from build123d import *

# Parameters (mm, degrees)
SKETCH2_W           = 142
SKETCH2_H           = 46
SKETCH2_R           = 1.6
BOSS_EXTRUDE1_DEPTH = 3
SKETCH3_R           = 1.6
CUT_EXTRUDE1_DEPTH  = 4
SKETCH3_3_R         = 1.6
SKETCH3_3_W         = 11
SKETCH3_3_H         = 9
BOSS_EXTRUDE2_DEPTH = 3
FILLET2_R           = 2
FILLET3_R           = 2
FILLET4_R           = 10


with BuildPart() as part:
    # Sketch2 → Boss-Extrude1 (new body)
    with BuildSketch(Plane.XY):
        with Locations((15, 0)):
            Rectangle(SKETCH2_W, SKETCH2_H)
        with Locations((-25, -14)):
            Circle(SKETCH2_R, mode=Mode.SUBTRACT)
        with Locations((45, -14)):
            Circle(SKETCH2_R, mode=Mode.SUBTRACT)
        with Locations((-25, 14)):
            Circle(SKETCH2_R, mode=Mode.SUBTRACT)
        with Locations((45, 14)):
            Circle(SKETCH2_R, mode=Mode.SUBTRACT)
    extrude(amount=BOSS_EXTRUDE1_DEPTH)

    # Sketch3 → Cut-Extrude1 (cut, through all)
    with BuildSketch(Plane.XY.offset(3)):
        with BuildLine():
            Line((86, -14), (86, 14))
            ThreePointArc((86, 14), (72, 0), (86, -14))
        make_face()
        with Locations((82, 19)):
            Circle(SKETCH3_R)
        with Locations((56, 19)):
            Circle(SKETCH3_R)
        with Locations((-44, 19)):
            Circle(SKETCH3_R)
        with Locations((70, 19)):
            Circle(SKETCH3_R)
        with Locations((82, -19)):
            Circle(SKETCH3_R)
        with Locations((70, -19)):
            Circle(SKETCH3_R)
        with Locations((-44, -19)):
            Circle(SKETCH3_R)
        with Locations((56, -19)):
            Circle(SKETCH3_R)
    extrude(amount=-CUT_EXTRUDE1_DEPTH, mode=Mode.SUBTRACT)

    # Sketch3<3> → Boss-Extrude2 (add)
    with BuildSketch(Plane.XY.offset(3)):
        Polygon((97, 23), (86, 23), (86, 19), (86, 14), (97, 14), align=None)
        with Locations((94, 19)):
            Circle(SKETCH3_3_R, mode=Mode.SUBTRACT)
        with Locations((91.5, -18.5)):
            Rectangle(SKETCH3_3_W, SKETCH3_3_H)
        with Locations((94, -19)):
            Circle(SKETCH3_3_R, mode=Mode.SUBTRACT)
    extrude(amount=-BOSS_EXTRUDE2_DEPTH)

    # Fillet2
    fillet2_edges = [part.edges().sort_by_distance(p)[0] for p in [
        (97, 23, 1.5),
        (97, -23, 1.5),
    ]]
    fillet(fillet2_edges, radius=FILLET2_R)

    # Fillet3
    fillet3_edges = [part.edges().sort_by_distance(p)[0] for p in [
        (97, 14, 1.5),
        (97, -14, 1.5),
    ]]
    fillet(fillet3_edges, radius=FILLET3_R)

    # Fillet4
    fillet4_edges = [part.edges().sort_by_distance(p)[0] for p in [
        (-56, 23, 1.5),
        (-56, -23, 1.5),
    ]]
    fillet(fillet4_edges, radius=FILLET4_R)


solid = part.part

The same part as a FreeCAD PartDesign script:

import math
import FreeCAD as App
import Part
import Sketcher
Q = App.Units.Quantity


def edges_at(feature, points):
    """Names of the edges that pass closest to the given points."""
    edges = feature.Shape.Edges
    near = lambda p: min(range(len(edges)), key=lambda i: edges[i].distToShape(Part.Vertex(*p))[0])
    return sorted({f"Edge{near(p) + 1}" for p in points})


def add_polygon(sketch, points):
    """Adds a closed chain of lines whose ends are joined by coincident constraints."""
    first, n = sketch.GeometryCount, len(points)
    for a, b in zip(points, points[1:] + points[:1]):
        sketch.addGeometry(Part.LineSegment(App.Vector(*a, 0), App.Vector(*b, 0)), False)
    for i in range(n):
        sketch.addConstraint(Sketcher.Constraint("Coincident", first + i, 2, first + (i + 1) % n, 1))

doc = App.newDocument("Part")
body = doc.addObject("PartDesign::Body", "Body")

sketch1 = body.newObject("Sketcher::SketchObject", "Sketch")
sketch1.AttachmentSupport = (doc.getObject("XY_Plane"), [""])
sketch1.MapMode = "FlatFace"
add_polygon(sketch1, [(-56, 23), (-56, -23), (86, -23), (86, 23)])
sketch1.addGeometry(Part.Circle(App.Vector(-25, -14, 0), App.Vector(0, 0, 1), 1.6), False)
sketch1.addGeometry(Part.Circle(App.Vector(45, -14, 0), App.Vector(0, 0, 1), 1.6), False)
sketch1.addGeometry(Part.Circle(App.Vector(-25, 14, 0), App.Vector(0, 0, 1), 1.6), False)
sketch1.addGeometry(Part.Circle(App.Vector(45, 14, 0), App.Vector(0, 0, 1), 1.6), False)
sketch1.addConstraint([
    Sketcher.Constraint("Vertical", 0),
    Sketcher.Constraint("Horizontal", 1),
    Sketcher.Constraint("Vertical", 2),
    Sketcher.Constraint("Horizontal", 3),
    Sketcher.Constraint("Equal", 4, 5),
    Sketcher.Constraint("Equal", 5, 6),
    Sketcher.Constraint("Equal", 6, 7),
    Sketcher.Constraint("Symmetric", 4, 3, 6, 3, -1),
    Sketcher.Constraint("Symmetric", 5, 3, 7, 3, -1),
    Sketcher.Constraint("Horizontal", 4, 3, 5, 3),
    Sketcher.Constraint("Diameter", 4, Q("3.2 mm")),
    Sketcher.Constraint("DistanceX", 1, 1, 1, 2, Q("142 mm")),
    Sketcher.Constraint("DistanceY", 0, 2, 0, 1, Q("46 mm")),
    Sketcher.Constraint("DistanceX", 4, 3, -1, 1, Q("25 mm")),
    Sketcher.Constraint("DistanceY", 4, 3, -1, 1, Q("14 mm")),
    Sketcher.Constraint("DistanceX", -1, 1, 5, 3, Q("45 mm")),
    Sketcher.Constraint("DistanceX", 0, 2, -1, 1, Q("56 mm")),
    Sketcher.Constraint("DistanceY", 0, 2, -1, 1, Q("23 mm")),
])
pad1 = body.newObject("PartDesign::Pad", "Pad")
pad1.Profile = sketch1
pad1.Length = 3

sketch2 = body.newObject("Sketcher::SketchObject", "Sketch001")
sketch2.AttachmentSupport = (doc.getObject("XY_Plane"), [""])
sketch2.MapMode = "FlatFace"
sketch2.AttachmentOffset = App.Placement(App.Vector(0, 0, 3), App.Rotation())
sketch2.addGeometry([
    Part.LineSegment(App.Vector(86, -14, 0), App.Vector(86, 14, 0)),
    Part.ArcOfCircle(Part.Circle(App.Vector(86, 0, 0), App.Vector(0, 0, 1), 14), math.radians(90), math.radians(270)),
    Part.Circle(App.Vector(82, 19, 0), App.Vector(0, 0, 1), 1.6),
    Part.Circle(App.Vector(56, 19, 0), App.Vector(0, 0, 1), 1.6),
    Part.Circle(App.Vector(-44, 19, 0), App.Vector(0, 0, 1), 1.6),
    Part.Circle(App.Vector(70, 19, 0), App.Vector(0, 0, 1), 1.6),
    Part.Circle(App.Vector(82, -19, 0), App.Vector(0, 0, 1), 1.6),
    Part.Circle(App.Vector(70, -19, 0), App.Vector(0, 0, 1), 1.6),
    Part.Circle(App.Vector(-44, -19, 0), App.Vector(0, 0, 1), 1.6),
    Part.Circle(App.Vector(56, -19, 0), App.Vector(0, 0, 1), 1.6),
], False)
sketch2.addConstraint([
    Sketcher.Constraint("Coincident", 0, 1, 1, 2),
    Sketcher.Constraint("Coincident", 1, 1, 0, 2),
    Sketcher.Constraint("Vertical", 0),
    Sketcher.Constraint("Equal", 2, 3),
    Sketcher.Constraint("Equal", 3, 4),
    Sketcher.Constraint("Equal", 4, 5),
    Sketcher.Constraint("Equal", 5, 6),
    Sketcher.Constraint("Equal", 6, 7),
    Sketcher.Constraint("Equal", 7, 8),
    Sketcher.Constraint("Equal", 8, 9),
    Sketcher.Constraint("Symmetric", 2, 3, 6, 3, -1),
    Sketcher.Constraint("Symmetric", 5, 3, 7, 3, -1),
    Sketcher.Constraint("Symmetric", 4, 3, 8, 3, -1),
    Sketcher.Constraint("Symmetric", 3, 3, 9, 3, -1),
    Sketcher.Constraint("PointOnObject", 1, 3, -1),
    Sketcher.Constraint("Horizontal", 2, 3, 3, 3),
    Sketcher.Constraint("Horizontal", 3, 3, 4, 3),
    Sketcher.Constraint("Horizontal", 4, 3, 5, 3),
    Sketcher.Constraint("Vertical", 1, 3, 0, 1),
    Sketcher.Constraint("Radius", 1, Q("14 mm")),
    Sketcher.Constraint("Diameter", 2, Q("3.2 mm")),
    Sketcher.Constraint("DistanceX", -1, 1, 1, 3, Q("86 mm")),
    Sketcher.Constraint("DistanceX", -1, 1, 2, 3, Q("82 mm")),
    Sketcher.Constraint("DistanceY", -1, 1, 2, 3, Q("19 mm")),
    Sketcher.Constraint("DistanceX", -1, 1, 3, 3, Q("56 mm")),
    Sketcher.Constraint("DistanceX", 4, 3, -1, 1, Q("44 mm")),
    Sketcher.Constraint("DistanceX", -1, 1, 5, 3, Q("70 mm")),
])
pocket1 = body.newObject("PartDesign::Pocket", "Pocket")
pocket1.Profile = sketch2
pocket1.Type = "ThroughAll"

sketch3 = body.newObject("Sketcher::SketchObject", "Sketch002")
sketch3.AttachmentSupport = (doc.getObject("XY_Plane"), [""])
sketch3.MapMode = "FlatFace"
sketch3.AttachmentOffset = App.Placement(App.Vector(0, 0, 3), App.Rotation())
add_polygon(sketch3, [(97, 23), (86, 23), (86, 14), (97, 14)])
sketch3.addGeometry(Part.Circle(App.Vector(94, 19, 0), App.Vector(0, 0, 1), 1.6), False)
add_polygon(sketch3, [(86, -14), (86, -23), (97, -23), (97, -14)])
sketch3.addGeometry(Part.Circle(App.Vector(94, -19, 0), App.Vector(0, 0, 1), 1.6), False)
sketch3.addConstraint([
    Sketcher.Constraint("Horizontal", 0),
    Sketcher.Constraint("Vertical", 1),
    Sketcher.Constraint("Horizontal", 2),
    Sketcher.Constraint("Vertical", 3),
    Sketcher.Constraint("Vertical", 5),
    Sketcher.Constraint("Horizontal", 6),
    Sketcher.Constraint("Vertical", 7),
    Sketcher.Constraint("Horizontal", 8),
    Sketcher.Constraint("Equal", 4, 9),
    Sketcher.Constraint("Symmetric", 4, 3, 9, 3, -1),
    Sketcher.Constraint("Symmetric", 0, 2, 5, 2, -1),
    Sketcher.Constraint("Symmetric", 2, 2, 7, 2, -1),
    Sketcher.Constraint("Diameter", 4, Q("3.2 mm")),
    Sketcher.Constraint("DistanceX", 0, 2, 0, 1, Q("11 mm")),
    Sketcher.Constraint("DistanceY", 1, 2, 1, 1, Q("9 mm")),
    Sketcher.Constraint("DistanceX", -1, 1, 4, 3, Q("94 mm")),
    Sketcher.Constraint("DistanceY", -1, 1, 4, 3, Q("19 mm")),
    Sketcher.Constraint("DistanceX", -1, 1, 0, 2, Q("86 mm")),
    Sketcher.Constraint("DistanceY", -1, 1, 0, 2, Q("23 mm")),
])
pad2 = body.newObject("PartDesign::Pad", "Pad001")
pad2.Profile = sketch3
pad2.Length = 3
pad2.Reversed = True
doc.recompute()

fillet = body.newObject("PartDesign::Fillet", "Fillet")
fillet.Base = (pad2, edges_at(pad2, [(97, 23, 1.5), (97, -23, 1.5)]))
fillet.Radius = 2
doc.recompute()

fillet2 = body.newObject("PartDesign::Fillet", "Fillet001")
fillet2.Base = (fillet, edges_at(fillet, [(97, 14, 1.5), (97, -14, 1.5)]))
fillet2.Radius = 2
doc.recompute()

fillet3 = body.newObject("PartDesign::Fillet", "Fillet002")
fillet3.Base = (fillet2, edges_at(fillet2, [(-56, 23, 1.5), (-56, -23, 1.5)]))
fillet3.Radius = 10

doc.recompute()
